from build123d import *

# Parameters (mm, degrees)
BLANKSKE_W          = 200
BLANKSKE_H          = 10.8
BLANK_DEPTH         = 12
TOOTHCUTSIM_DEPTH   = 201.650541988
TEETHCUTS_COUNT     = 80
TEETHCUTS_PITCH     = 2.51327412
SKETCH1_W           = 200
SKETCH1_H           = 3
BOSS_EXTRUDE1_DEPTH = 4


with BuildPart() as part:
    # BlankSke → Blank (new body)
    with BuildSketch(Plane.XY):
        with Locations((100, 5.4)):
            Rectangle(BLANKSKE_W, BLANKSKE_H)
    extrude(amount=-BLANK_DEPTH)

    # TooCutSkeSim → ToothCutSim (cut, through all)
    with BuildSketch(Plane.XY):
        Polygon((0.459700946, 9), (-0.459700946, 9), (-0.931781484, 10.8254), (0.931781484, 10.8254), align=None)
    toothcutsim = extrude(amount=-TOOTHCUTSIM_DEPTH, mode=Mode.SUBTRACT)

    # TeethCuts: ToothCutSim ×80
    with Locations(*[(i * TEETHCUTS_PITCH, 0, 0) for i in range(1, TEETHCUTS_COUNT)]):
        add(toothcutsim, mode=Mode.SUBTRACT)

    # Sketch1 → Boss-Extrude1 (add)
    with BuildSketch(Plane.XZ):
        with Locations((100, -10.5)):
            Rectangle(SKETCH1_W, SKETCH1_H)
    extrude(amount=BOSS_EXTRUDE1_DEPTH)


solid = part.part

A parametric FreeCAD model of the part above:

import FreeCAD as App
import Part
import Sketcher
from FreeCAD import Vector
Q = App.Units.Quantity

doc = App.newDocument("Part")
body = doc.addObject("PartDesign::Body", "Body")

# Sketch on XY plane
sketch1 = body.newObject("Sketcher::SketchObject", "Sketch")
sketch1.AttachmentSupport = (doc.getObject("XY_Plane"), [""])
sketch1.MapMode = "FlatFace"
sketch1.addGeometry(Part.LineSegment(Vector(0, 11, 0), Vector(0, 0, 0)), False)
sketch1.addGeometry(Part.LineSegment(Vector(0, 0, 0), Vector(200, 0, 0)), False)
sketch1.addGeometry(Part.LineSegment(Vector(200, 0, 0), Vector(200, 11, 0)), False)
sketch1.addGeometry(Part.LineSegment(Vector(200, 11, 0), Vector(0, 11, 0)), False)
sketch1.addConstraint(Sketcher.Constraint("Coincident", 0, 2, 1, 1))
sketch1.addConstraint(Sketcher.Constraint("Coincident", 1, 2, 2, 1))
sketch1.addConstraint(Sketcher.Constraint("Coincident", 2, 2, 3, 1))
sketch1.addConstraint(Sketcher.Constraint("Coincident", 3, 2, 0, 1))
sketch1.addConstraint(Sketcher.Constraint("Vertical", 0))
sketch1.addConstraint(Sketcher.Constraint("Horizontal", 1))
sketch1.addConstraint(Sketcher.Constraint("Vertical", 2))
sketch1.addConstraint(Sketcher.Constraint("Horizontal", 3))
sketch1.addConstraint(Sketcher.Constraint("Coincident", 0, 2, -1, 1))
sketch1.addConstraint(Sketcher.Constraint("DistanceX", 1, 1, 1, 2, Q("200 mm")))
sketch1.addConstraint(Sketcher.Constraint("DistanceY", 0, 2, 0, 1, Q("10.8 mm")))
pad1 = body.newObject("PartDesign::Pad", "Pad")
pad1.Profile = sketch1
pad1.Length = 12
pad1.Reversed = True

# Sketch on XY plane
sketch2 = body.newObject("Sketcher::SketchObject", "Sketch001")
sketch2.AttachmentSupport = (doc.getObject("XY_Plane"), [""])
sketch2.MapMode = "FlatFace"
sketch2.addGeometry(Part.LineSegment(Vector(-0.5, 9, 0), Vector(0.5, 9, 0)), False)
sketch2.addGeometry(Part.LineSegment(Vector(0.5, 9, 0), Vector(0.9, 10.8, 0)), False)
sketch2.addGeometry(Part.LineSegment(Vector(0.9, 10.8, 0), Vector(-0.9, 10.8, 0)), False)
sketch2.addGeometry(Part.LineSegment(Vector(-0.9, 10.8, 0), Vector(-0.5, 9, 0)), False)
sketch2.addConstraint(Sketcher.Constraint("Coincident", 0, 2, 1, 1))
sketch2.addConstraint(Sketcher.Constraint("Coincident", 1, 2, 2, 1))
sketch2.addConstraint(Sketcher.Constraint("Coincident", 2, 2, 3, 1))
sketch2.addConstraint(Sketcher.Constraint("Coincident", 3, 2, 0, 1))
sketch2.addConstraint(Sketcher.Constraint("Horizontal", 0))
sketch2.addConstraint(Sketcher.Constraint("Horizontal", 2))
sketch2.addConstraint(Sketcher.Constraint("Equal", 1, 3))
sketch2.addConstraint(Sketcher.Constraint("DistanceY", -1, 1, 0, 2, Q("9 mm")))
sketch2.addConstraint(Sketcher.Constraint("Angle", 1, Q("75.5 deg")))
sketch2.addConstraint(Sketcher.Constraint("DistanceX", 0, 1, 0, 2, Q("0.919402 mm")))
sketch2.addConstraint(Sketcher.Constraint("DistanceX", -1, 1, 0, 2, Q("0.459701 mm")))
sketch2.addConstraint(Sketcher.Constraint("DistanceY", -1, 1, 1, 2, Q("10.8254 mm")))
pocket1 = body.newObject("PartDesign::Pocket", "Pocket")
pocket1.Profile = sketch2
pocket1.Type = "ThroughAll"
doc.recompute()

linearpattern = body.newObject("PartDesign::LinearPattern", "LinearPattern")
linearpattern.Originals = [pocket1]
linearpattern.Direction = (doc.getObject("X_Axis"), [""])
linearpattern.Mode = "offset"
linearpattern.Offset = 2.513274
linearpattern.Occurrences = 80
body.Tip = linearpattern

# Sketch on XZ plane
sketch3 = body.newObject("Sketcher::SketchObject", "Sketch002")
sketch3.AttachmentSupport = (doc.getObject("XZ_Plane"), [""])
sketch3.MapMode = "FlatFace"
sketch3.addGeometry(Part.LineSegment(Vector(0, -9, 0), Vector(0, -12, 0)), False)
sketch3.addGeometry(Part.LineSegment(Vector(0, -12, 0), Vector(200, -12, 0)), False)
sketch3.addGeometry(Part.LineSegment(Vector(200, -12, 0), Vector(200, -9, 0)), False)
sketch3.addGeometry(Part.LineSegment(Vector(200, -9, 0), Vector(0, -9, 0)), False)
sketch3.addConstraint(Sketcher.Constraint("Coincident", 0, 2, 1, 1))
sketch3.addConstraint(Sketcher.Constraint("Coincident", 1, 2, 2, 1))
sketch3.addConstraint(Sketcher.Constraint("Coincident", 2, 2, 3, 1))
sketch3.addConstraint(Sketcher.Constraint("Coincident", 3, 2, 0, 1))
sketch3.addConstraint(Sketcher.Constraint("Vertical", 0))
sketch3.addConstraint(Sketcher.Constraint("Horizontal", 1))
sketch3.addConstraint(Sketcher.Constraint("Vertical", 2))
sketch3.addConstraint(Sketcher.Constraint("Horizontal", 3))
sketch3.addConstraint(Sketcher.Constraint("PointOnObject", 0, 2, -2))
sketch3.addConstraint(Sketcher.Constraint("DistanceX", 1, 1, 1, 2, Q("200 mm")))
sketch3.addConstraint(Sketcher.Constraint("DistanceY", 0, 2, 0, 1, Q("3 mm")))
sketch3.addConstraint(Sketcher.Constraint("DistanceY", 0, 2, -1, 1, Q("12 mm")))
pad2 = body.newObject("PartDesign::Pad", "Pad001")
pad2.Profile = sketch3
pad2.Length = 4

doc.recompute()
